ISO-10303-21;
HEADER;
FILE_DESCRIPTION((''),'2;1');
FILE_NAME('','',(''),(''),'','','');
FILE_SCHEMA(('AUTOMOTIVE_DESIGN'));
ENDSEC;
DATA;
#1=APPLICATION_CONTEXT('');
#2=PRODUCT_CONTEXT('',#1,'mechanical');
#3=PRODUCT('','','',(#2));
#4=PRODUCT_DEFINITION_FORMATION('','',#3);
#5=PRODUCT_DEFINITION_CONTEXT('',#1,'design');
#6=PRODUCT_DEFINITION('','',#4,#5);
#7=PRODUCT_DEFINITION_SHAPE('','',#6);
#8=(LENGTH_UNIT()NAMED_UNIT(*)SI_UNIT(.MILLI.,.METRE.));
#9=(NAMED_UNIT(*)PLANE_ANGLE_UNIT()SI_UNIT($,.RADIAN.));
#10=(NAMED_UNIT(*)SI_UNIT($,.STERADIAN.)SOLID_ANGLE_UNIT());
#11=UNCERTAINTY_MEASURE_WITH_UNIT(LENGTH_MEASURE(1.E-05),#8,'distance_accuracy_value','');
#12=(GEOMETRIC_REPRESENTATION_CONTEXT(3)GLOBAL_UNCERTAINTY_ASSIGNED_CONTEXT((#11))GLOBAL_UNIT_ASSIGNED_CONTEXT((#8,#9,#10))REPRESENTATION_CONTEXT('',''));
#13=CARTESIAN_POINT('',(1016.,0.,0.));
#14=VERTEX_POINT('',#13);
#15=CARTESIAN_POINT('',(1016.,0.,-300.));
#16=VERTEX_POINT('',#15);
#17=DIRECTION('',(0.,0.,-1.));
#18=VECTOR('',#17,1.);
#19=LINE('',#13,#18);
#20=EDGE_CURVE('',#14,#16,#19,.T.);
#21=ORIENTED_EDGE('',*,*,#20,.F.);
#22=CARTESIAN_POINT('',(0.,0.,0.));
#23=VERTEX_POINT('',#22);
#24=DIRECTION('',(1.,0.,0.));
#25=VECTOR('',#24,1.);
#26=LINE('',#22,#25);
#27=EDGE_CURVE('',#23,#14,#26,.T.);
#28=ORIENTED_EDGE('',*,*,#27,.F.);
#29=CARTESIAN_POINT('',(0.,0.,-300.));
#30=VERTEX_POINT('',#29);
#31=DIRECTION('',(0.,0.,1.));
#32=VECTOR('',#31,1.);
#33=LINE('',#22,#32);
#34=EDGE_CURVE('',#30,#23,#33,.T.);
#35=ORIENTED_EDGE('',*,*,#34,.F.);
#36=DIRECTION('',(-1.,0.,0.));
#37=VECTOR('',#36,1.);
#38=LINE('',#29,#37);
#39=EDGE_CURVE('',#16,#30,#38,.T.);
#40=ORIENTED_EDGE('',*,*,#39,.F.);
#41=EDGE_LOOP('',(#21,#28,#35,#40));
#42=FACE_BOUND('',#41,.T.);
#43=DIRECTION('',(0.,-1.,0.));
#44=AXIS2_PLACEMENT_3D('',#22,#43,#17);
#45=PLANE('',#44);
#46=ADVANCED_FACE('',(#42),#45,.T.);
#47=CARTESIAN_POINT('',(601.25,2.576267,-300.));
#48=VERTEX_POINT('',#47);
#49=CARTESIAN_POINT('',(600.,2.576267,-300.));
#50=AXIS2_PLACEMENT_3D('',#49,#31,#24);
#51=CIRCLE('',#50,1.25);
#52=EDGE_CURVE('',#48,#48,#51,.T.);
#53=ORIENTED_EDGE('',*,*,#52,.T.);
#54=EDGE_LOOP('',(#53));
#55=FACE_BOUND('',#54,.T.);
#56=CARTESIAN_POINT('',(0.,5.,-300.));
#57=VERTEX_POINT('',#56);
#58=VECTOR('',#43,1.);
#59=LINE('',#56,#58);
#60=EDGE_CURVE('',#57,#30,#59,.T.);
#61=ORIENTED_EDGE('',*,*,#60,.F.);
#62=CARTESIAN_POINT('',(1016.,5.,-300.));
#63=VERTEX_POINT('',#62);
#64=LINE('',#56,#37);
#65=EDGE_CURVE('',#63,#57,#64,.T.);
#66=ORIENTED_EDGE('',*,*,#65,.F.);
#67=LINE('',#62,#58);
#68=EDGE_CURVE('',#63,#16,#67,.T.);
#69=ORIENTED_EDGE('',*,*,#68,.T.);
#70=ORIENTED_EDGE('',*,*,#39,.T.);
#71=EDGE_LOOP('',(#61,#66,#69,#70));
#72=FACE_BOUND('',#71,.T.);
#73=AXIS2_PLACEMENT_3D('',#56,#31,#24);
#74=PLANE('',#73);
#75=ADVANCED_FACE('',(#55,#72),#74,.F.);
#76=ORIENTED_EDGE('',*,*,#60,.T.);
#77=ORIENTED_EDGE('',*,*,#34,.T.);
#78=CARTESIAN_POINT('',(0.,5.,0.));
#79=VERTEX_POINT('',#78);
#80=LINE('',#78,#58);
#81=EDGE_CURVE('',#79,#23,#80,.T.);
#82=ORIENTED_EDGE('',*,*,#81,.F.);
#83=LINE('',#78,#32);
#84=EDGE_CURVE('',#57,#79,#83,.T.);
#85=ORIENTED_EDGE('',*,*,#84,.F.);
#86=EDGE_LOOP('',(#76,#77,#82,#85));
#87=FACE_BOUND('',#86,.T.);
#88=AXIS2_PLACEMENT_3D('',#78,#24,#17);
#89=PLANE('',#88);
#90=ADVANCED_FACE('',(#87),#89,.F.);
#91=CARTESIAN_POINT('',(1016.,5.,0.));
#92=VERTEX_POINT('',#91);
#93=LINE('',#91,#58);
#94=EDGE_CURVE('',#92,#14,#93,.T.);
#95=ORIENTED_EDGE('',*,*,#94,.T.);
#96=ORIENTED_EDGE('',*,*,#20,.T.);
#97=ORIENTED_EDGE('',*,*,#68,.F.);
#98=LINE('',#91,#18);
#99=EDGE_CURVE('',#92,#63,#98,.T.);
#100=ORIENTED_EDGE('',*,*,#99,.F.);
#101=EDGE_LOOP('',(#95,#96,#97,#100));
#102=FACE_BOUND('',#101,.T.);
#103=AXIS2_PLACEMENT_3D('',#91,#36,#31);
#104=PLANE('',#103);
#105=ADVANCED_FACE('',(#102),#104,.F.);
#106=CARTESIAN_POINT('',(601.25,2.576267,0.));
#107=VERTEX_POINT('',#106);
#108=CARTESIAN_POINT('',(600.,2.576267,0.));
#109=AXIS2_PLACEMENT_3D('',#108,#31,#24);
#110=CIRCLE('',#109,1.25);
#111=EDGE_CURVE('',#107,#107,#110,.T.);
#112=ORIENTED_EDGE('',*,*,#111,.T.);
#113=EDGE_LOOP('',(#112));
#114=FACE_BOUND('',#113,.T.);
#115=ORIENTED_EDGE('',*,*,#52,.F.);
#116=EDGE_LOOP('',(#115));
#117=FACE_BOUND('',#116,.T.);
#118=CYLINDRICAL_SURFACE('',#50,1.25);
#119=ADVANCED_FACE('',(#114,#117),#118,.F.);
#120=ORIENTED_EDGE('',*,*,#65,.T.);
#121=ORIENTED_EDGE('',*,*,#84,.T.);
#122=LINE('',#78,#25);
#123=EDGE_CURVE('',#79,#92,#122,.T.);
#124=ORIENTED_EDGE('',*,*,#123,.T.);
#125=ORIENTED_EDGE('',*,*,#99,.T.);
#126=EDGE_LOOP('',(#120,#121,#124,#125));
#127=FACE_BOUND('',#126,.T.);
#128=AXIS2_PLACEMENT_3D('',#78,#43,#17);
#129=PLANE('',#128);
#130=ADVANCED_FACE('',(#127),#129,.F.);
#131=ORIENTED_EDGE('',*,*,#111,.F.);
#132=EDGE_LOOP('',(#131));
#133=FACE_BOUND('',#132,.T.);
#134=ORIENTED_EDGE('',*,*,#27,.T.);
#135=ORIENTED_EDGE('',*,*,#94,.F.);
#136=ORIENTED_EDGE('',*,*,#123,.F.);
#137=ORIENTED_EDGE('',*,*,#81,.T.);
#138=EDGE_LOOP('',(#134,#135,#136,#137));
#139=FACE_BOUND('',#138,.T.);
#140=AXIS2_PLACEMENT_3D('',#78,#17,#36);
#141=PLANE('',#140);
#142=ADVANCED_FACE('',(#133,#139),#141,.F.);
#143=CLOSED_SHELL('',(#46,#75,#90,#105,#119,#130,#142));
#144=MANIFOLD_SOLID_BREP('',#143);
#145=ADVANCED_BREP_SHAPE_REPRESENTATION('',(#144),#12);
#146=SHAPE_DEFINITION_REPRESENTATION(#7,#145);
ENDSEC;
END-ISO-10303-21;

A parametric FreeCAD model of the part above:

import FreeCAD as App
import Part
import Sketcher

V = App.Vector

doc = App.newDocument("Part")
body = doc.addObject("PartDesign::Body", "Body")

# Sketch on XZ plane
sketch1 = doc.addObject("Sketcher::SketchObject", "Sketch")
body.addObject(sketch1)
sketch1.AttachmentSupport = (doc.XZ_Plane, [""])
sketch1.MapMode = "FlatFace"
sketch1.addGeometry([
    Part.LineSegment(V(0, -300, 0), V(0, 0, 0)),
    Part.LineSegment(V(0, 0, 0), V(1016, 0, 0)),
    Part.LineSegment(V(1016, 0, 0), V(1016, -300, 0)),
    Part.LineSegment(V(1016, -300, 0), V(0, -300, 0)),
], False)
sketch1.addConstraint([
    Sketcher.Constraint("Coincident", 0, 2, 1, 1),
    Sketcher.Constraint("Coincident", 1, 2, 2, 1),
    Sketcher.Constraint("Coincident", 2, 2, 3, 1),
    Sketcher.Constraint("Coincident", 3, 2, 0, 1),
    Sketcher.Constraint("Vertical", 0),
    Sketcher.Constraint("Horizontal", 1),
    Sketcher.Constraint("Vertical", 2),
    Sketcher.Constraint("Horizontal", 3),
    Sketcher.Constraint("Coincident", 0, 2, -1, 1),
    Sketcher.Constraint("DistanceX", 1, 1, 1, 2, 1016.0),
    Sketcher.Constraint("DistanceY", 0, 1, 0, 2, 300.0),
])
pad1 = doc.addObject("PartDesign::Pad", "Pad")
body.addObject(pad1)
pad1.Profile = sketch1
pad1.Length = 5
pad1.Reversed = True

# Sketch on XY plane
sketch2 = doc.addObject("Sketcher::SketchObject", "Sketch001")
body.addObject(sketch2)
sketch2.AttachmentSupport = (doc.XY_Plane, [""])
sketch2.MapMode = "FlatFace"
sketch2.addGeometry(Part.Circle(V(600, 2.6, 0), V(0, 0, 1), 1.2), False)
sketch2.addConstraint([
    Sketcher.Constraint("Diameter", 0, 2.5),
    Sketcher.Constraint("DistanceX", -1, 1, 0, 3, 600.0),
    Sketcher.Constraint("DistanceY", -1, 1, 0, 3, 2.576267),
])
pocket1 = doc.addObject("PartDesign::Pocket", "Pocket")
body.addObject(pocket1)
pocket1.Profile = sketch2
pocket1.Type = "ThroughAll"

doc.recompute()
